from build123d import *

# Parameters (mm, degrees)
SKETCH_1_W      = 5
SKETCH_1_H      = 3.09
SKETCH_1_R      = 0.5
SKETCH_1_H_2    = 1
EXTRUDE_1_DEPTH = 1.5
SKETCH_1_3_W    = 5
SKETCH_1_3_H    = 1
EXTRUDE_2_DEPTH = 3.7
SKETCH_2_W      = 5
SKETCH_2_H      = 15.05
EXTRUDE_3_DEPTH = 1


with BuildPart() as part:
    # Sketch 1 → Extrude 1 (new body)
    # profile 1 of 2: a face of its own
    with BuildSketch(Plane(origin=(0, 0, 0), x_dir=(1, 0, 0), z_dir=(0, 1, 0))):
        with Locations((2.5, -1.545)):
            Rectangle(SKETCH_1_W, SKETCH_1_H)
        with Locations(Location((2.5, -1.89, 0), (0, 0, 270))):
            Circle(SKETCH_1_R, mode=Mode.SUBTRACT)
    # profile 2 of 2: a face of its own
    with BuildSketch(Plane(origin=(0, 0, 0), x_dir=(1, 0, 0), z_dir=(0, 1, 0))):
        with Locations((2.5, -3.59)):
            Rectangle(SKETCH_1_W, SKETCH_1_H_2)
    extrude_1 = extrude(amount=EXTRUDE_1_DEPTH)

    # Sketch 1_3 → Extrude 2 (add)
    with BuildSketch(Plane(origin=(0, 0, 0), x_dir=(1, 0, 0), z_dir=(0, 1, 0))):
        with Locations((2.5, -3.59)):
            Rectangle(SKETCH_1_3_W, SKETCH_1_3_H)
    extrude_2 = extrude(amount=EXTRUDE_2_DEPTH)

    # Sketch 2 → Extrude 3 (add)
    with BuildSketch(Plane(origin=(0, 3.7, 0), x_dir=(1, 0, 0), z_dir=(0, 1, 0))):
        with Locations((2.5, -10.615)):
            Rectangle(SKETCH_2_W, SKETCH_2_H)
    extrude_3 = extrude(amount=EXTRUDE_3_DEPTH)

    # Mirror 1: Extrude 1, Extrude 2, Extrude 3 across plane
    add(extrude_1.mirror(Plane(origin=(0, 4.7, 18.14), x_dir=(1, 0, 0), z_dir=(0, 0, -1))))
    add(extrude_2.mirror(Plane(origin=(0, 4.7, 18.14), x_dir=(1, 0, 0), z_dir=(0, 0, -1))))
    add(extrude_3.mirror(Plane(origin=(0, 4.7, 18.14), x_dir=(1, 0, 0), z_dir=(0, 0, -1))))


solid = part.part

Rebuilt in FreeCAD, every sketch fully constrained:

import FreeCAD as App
import Part
import Sketcher


def add_polygon(sketch, points):
    """Adds a closed chain of lines whose ends are joined by coincident constraints."""
    first, n = sketch.GeometryCount, len(points)
    for a, b in zip(points, points[1:] + points[:1]):
        sketch.addGeometry(Part.LineSegment(App.Vector(*a, 0), App.Vector(*b, 0)), False)
    for i in range(n):
        sketch.addConstraint(Sketcher.Constraint("Coincident", first + i, 2, first + (i + 1) % n, 1))

doc = App.newDocument("Part")
params = doc.addObject("Spreadsheet::Sheet", "Params")
for row, (alias, value) in enumerate([
    ("sketch1_diameter", "1 mm"),
    ("sketch1_width", "5 mm"),
    ("sketch1_height", "4.09 mm"),
    ("pad1_length", "1.5 mm"),
    ("sketch2_width", "5 mm"),
    ("sketch2_height", "1 mm"),
    ("pad2_length", "3.7 mm"),
    ("sketch3_width", "5 mm"),
    ("sketch3_height", "15.05 mm"),
    ("pad3_length", "1 mm"),
], start=1):
    params.set(f"A{row}", alias)
    params.set(f"B{row}", "=" + value)
    params.setAlias(f"B{row}", alias)

body = doc.addObject("PartDesign::Body", "Body")

# Sketch on XZ plane
sketch1 = body.newObject("Sketcher::SketchObject", "Sketch")
sketch1.AttachmentSupport = (doc.getObject("XZ_Plane"), [""])
sketch1.MapMode = "FlatFace"
add_polygon(sketch1, [(0, 0), (0, 4.1), (5, 4.1), (5, 0)])  # lines 0-3
sketch1.addGeometry(Part.Circle(App.Vector(2.5, 1.9, 0), App.Vector(0, 0, 1), 0.5), False)  # 4
sketch1.addConstraint(Sketcher.Constraint("Vertical", 0))
sketch1.addConstraint(Sketcher.Constraint("Horizontal", 1))
sketch1.addConstraint(Sketcher.Constraint("Vertical", 2))
sketch1.addConstraint(Sketcher.Constraint("Horizontal", 3))
sketch1.addConstraint(Sketcher.Constraint("Coincident", 3, 2, -1, 1))
sketch1.addConstraint(Sketcher.Constraint("Diameter", 4, 1.0))
sketch1.addConstraint(Sketcher.Constraint("DistanceX", 1, 1, 1, 2, 5.0))
sketch1.addConstraint(Sketcher.Constraint("DistanceY", 0, 1, 0, 2, 4.09))
sketch1.addConstraint(Sketcher.Constraint("DistanceX", -1, 1, 4, 3, 2.5))
sketch1.addConstraint(Sketcher.Constraint("DistanceY", 4, 3, 0, 2, 2.2))
sketch1.setExpression("Constraints[9]", "Params.sketch1_diameter")
sketch1.setExpression("Constraints[10]", "Params.sketch1_width")
sketch1.setExpression("Constraints[11]", "Params.sketch1_height")
pad1 = body.newObject("PartDesign::Pad", "Pad")
pad1.Profile = sketch1
pad1.setExpression("Length", "Params.pad1_length")
pad1.Reversed = True

# Sketch on XZ plane
sketch2 = body.newObject("Sketcher::SketchObject", "Sketch001")
sketch2.AttachmentSupport = (doc.getObject("XZ_Plane"), [""])
sketch2.MapMode = "FlatFace"
add_polygon(sketch2, [(0, 3.1), (0, 4.1), (5, 4.1), (5, 3.1)])  # lines 0-3
sketch2.addConstraint(Sketcher.Constraint("Vertical", 0))
sketch2.addConstraint(Sketcher.Constraint("Horizontal", 1))
sketch2.addConstraint(Sketcher.Constraint("Vertical", 2))
sketch2.addConstraint(Sketcher.Constraint("Horizontal", 3))
sketch2.addConstraint(Sketcher.Constraint("PointOnObject", 0, 2, -2))
sketch2.addConstraint(Sketcher.Constraint("DistanceX", 1, 1, 1, 2, 5.0))
sketch2.addConstraint(Sketcher.Constraint("DistanceY", 0, 1, 0, 2, 1.0))
sketch2.addConstraint(Sketcher.Constraint("DistanceY", -1, 1, 0, 2, 4.09))
sketch2.setExpression("Constraints[9]", "Params.sketch2_width")
sketch2.setExpression("Constraints[10]", "Params.sketch2_height")
pad2 = body.newObject("PartDesign::Pad", "Pad001")
pad2.Profile = sketch2
pad2.setExpression("Length", "Params.pad2_length")
pad2.Reversed = True

# Sketch on XZ plane
sketch3 = body.newObject("Sketcher::SketchObject", "Sketch002")
sketch3.AttachmentSupport = (doc.getObject("XZ_Plane"), [""])
sketch3.MapMode = "FlatFace"
sketch3.AttachmentOffset = App.Placement(App.Vector(0, 0, -3.7), App.Rotation())
add_polygon(sketch3, [(0, 3), (0, 18), (5, 18), (5, 3)])  # lines 0-3
sketch3.addConstraint(Sketcher.Constraint("Vertical", 0))
sketch3.addConstraint(Sketcher.Constraint("Horizontal", 1))
sketch3.addConstraint(Sketcher.Constraint("Vertical", 2))
sketch3.addConstraint(Sketcher.Constraint("Horizontal", 3))
sketch3.addConstraint(Sketcher.Constraint("PointOnObject", 0, 2, -2))
sketch3.addConstraint(Sketcher.Constraint("DistanceX", 1, 1, 1, 2, 5.0))
sketch3.addConstraint(Sketcher.Constraint("DistanceY", 0, 1, 0, 2, 15.05))
sketch3.addConstraint(Sketcher.Constraint("DistanceY", -1, 1, 0, 2, 18.14))
sketch3.setExpression("Constraints[9]", "Params.sketch3_width")
sketch3.setExpression("Constraints[10]", "Params.sketch3_height")
pad3 = body.newObject("PartDesign::Pad", "Pad002")
pad3.Profile = sketch3
pad3.setExpression("Length", "Params.pad3_length")
pad3.Reversed = True
doc.recompute()

datumplane = body.newObject("PartDesign::Plane", "DatumPlane")
datumplane.AttachmentSupport = (doc.getObject("XY_Plane"), [""])
datumplane.MapMode = "FlatFace"
datumplane.AttachmentOffset = App.Placement(App.Vector(0, 0, 18.14), App.Rotation())
mirrored = body.newObject("PartDesign::Mirrored", "Mirrored")
mirrored.Originals = [pad1, pad2, pad3]
mirrored.MirrorPlane = (datumplane, [""])
body.Tip = mirrored

doc.recompute()
